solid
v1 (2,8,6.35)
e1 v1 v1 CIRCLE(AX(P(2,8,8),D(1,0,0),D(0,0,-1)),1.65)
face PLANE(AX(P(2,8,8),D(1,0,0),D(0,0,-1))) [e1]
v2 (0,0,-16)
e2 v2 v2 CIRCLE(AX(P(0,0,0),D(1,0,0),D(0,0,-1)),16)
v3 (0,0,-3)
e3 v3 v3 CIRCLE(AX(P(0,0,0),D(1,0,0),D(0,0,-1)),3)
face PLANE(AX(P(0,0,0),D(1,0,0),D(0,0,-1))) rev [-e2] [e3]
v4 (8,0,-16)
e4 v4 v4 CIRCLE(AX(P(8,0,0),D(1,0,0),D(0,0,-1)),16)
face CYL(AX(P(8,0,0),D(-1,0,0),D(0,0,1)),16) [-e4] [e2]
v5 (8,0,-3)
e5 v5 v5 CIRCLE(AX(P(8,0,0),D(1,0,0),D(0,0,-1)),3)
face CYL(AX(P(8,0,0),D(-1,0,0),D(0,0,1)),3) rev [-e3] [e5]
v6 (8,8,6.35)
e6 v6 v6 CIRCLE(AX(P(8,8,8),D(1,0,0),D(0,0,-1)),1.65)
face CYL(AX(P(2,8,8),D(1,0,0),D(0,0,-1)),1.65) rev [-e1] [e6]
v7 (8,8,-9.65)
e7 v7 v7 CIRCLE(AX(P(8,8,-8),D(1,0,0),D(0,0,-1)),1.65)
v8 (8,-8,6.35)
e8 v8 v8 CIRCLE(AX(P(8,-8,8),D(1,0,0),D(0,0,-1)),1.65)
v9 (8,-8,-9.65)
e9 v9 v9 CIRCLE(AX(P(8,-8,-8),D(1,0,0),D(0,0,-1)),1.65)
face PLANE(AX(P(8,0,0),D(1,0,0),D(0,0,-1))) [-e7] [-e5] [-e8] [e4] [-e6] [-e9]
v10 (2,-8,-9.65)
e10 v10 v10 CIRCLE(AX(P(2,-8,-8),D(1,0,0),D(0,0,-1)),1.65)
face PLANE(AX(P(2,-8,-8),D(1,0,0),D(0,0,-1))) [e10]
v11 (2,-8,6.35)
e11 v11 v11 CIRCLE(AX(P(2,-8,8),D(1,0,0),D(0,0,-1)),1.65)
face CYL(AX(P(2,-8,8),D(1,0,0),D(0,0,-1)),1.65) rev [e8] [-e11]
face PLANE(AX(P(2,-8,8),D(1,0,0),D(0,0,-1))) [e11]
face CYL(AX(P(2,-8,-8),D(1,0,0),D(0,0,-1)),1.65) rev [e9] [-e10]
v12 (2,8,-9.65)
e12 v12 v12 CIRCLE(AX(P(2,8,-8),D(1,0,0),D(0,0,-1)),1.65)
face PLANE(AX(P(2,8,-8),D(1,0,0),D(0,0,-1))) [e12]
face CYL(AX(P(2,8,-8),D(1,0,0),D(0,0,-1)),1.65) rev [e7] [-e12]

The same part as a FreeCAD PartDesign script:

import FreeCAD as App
import Part
import Sketcher
from FreeCAD import Vector
Q = App.Units.Quantity

doc = App.newDocument("Part")
params = doc.addObject("Spreadsheet::Sheet", "Params")
for row, (alias, value) in enumerate([
    ("sketch1_diameter", "32 mm"),
    ("pad1_length", "8 mm"),
    ("sketch2_diameter", "6 mm"),
    ("pocket1_length", "8 mm"),
    ("sketch3_diameter", "3.3 mm"),
    ("pocket2_length", "6 mm"),
], start=1):
    params.set(f"A{row}", alias)
    params.set(f"B{row}", "=" + value)
    params.setAlias(f"B{row}", alias)

body = doc.addObject("PartDesign::Body", "Body")

sketch1 = body.newObject("Sketcher::SketchObject", "Sketch")
sketch1.AttachmentSupport = (doc.getObject("YZ_Plane"), [""])
sketch1.MapMode = "FlatFace"
sketch1.addGeometry(Part.Circle(Vector(0, 0, 0), Vector(0, 0, 1), 16), False)
sketch1.addConstraint([
    Sketcher.Constraint("Coincident", 0, 3, -1, 1),
    Sketcher.Constraint("Diameter", 0, Q("32 mm")),
])
sketch1.setExpression("Constraints[1]", "Params.sketch1_diameter")
pad1 = body.newObject("PartDesign::Pad", "Pad")
pad1.Profile = sketch1
pad1.setExpression("Length", "Params.pad1_length")

sketch2 = body.newObject("Sketcher::SketchObject", "Sketch001")
sketch2.AttachmentSupport = (doc.getObject("YZ_Plane"), [""])
sketch2.MapMode = "FlatFace"
sketch2.addGeometry(Part.Circle(Vector(0, 0, 0), Vector(0, 0, 1), 3), False)
sketch2.addConstraint([
    Sketcher.Constraint("Coincident", 0, 3, -1, 1),
    Sketcher.Constraint("Diameter", 0, Q("6 mm")),
])
sketch2.setExpression("Constraints[1]", "Params.sketch2_diameter")
pocket1 = body.newObject("PartDesign::Pocket", "Pocket")
pocket1.Profile = sketch2
pocket1.setExpression("Length", "Params.pocket1_length")
pocket1.Reversed = True

sketch3 = body.newObject("Sketcher::SketchObject", "Sketch002")
sketch3.AttachmentSupport = (doc.getObject("YZ_Plane"), [""])
sketch3.MapMode = "FlatFace"
sketch3.AttachmentOffset = App.Placement(Vector(0, 0, 8), App.Rotation())
sketch3.addGeometry([
    Part.Circle(Vector(8, 8, 0), Vector(0, 0, 1), 1.65),
    Part.Circle(Vector(-8, 8, 0), Vector(0, 0, 1), 1.65),
    Part.Circle(Vector(8, -8, 0), Vector(0, 0, 1), 1.65),
    Part.Circle(Vector(-8, -8, 0), Vector(0, 0, 1), 1.65),
], False)
sketch3.addConstraint([
    Sketcher.Constraint("Equal", 0, 1),
    Sketcher.Constraint("Equal", 1, 2),
    Sketcher.Constraint("Equal", 2, 3),
    Sketcher.Constraint("Symmetric", 1, 3, 2, 3, -1, 1),
    Sketcher.Constraint("Symmetric", 0, 3, 3, 3, -1, 1),
    Sketcher.Constraint("Symmetric", 0, 3, 1, 3, -2),
    Sketcher.Constraint("Diameter", 0, Q("3.3 mm")),
    Sketcher.Constraint("DistanceX", -1, 1, 0, 3, Q("8 mm")),
    Sketcher.Constraint("DistanceY", -1, 1, 0, 3, Q("8 mm")),
])
sketch3.setExpression("Constraints[6]", "Params.sketch3_diameter")
pocket2 = body.newObject("PartDesign::Pocket", "Pocket001")
pocket2.Profile = sketch3
pocket2.setExpression("Length", "Params.pocket2_length")

doc.recompute()
